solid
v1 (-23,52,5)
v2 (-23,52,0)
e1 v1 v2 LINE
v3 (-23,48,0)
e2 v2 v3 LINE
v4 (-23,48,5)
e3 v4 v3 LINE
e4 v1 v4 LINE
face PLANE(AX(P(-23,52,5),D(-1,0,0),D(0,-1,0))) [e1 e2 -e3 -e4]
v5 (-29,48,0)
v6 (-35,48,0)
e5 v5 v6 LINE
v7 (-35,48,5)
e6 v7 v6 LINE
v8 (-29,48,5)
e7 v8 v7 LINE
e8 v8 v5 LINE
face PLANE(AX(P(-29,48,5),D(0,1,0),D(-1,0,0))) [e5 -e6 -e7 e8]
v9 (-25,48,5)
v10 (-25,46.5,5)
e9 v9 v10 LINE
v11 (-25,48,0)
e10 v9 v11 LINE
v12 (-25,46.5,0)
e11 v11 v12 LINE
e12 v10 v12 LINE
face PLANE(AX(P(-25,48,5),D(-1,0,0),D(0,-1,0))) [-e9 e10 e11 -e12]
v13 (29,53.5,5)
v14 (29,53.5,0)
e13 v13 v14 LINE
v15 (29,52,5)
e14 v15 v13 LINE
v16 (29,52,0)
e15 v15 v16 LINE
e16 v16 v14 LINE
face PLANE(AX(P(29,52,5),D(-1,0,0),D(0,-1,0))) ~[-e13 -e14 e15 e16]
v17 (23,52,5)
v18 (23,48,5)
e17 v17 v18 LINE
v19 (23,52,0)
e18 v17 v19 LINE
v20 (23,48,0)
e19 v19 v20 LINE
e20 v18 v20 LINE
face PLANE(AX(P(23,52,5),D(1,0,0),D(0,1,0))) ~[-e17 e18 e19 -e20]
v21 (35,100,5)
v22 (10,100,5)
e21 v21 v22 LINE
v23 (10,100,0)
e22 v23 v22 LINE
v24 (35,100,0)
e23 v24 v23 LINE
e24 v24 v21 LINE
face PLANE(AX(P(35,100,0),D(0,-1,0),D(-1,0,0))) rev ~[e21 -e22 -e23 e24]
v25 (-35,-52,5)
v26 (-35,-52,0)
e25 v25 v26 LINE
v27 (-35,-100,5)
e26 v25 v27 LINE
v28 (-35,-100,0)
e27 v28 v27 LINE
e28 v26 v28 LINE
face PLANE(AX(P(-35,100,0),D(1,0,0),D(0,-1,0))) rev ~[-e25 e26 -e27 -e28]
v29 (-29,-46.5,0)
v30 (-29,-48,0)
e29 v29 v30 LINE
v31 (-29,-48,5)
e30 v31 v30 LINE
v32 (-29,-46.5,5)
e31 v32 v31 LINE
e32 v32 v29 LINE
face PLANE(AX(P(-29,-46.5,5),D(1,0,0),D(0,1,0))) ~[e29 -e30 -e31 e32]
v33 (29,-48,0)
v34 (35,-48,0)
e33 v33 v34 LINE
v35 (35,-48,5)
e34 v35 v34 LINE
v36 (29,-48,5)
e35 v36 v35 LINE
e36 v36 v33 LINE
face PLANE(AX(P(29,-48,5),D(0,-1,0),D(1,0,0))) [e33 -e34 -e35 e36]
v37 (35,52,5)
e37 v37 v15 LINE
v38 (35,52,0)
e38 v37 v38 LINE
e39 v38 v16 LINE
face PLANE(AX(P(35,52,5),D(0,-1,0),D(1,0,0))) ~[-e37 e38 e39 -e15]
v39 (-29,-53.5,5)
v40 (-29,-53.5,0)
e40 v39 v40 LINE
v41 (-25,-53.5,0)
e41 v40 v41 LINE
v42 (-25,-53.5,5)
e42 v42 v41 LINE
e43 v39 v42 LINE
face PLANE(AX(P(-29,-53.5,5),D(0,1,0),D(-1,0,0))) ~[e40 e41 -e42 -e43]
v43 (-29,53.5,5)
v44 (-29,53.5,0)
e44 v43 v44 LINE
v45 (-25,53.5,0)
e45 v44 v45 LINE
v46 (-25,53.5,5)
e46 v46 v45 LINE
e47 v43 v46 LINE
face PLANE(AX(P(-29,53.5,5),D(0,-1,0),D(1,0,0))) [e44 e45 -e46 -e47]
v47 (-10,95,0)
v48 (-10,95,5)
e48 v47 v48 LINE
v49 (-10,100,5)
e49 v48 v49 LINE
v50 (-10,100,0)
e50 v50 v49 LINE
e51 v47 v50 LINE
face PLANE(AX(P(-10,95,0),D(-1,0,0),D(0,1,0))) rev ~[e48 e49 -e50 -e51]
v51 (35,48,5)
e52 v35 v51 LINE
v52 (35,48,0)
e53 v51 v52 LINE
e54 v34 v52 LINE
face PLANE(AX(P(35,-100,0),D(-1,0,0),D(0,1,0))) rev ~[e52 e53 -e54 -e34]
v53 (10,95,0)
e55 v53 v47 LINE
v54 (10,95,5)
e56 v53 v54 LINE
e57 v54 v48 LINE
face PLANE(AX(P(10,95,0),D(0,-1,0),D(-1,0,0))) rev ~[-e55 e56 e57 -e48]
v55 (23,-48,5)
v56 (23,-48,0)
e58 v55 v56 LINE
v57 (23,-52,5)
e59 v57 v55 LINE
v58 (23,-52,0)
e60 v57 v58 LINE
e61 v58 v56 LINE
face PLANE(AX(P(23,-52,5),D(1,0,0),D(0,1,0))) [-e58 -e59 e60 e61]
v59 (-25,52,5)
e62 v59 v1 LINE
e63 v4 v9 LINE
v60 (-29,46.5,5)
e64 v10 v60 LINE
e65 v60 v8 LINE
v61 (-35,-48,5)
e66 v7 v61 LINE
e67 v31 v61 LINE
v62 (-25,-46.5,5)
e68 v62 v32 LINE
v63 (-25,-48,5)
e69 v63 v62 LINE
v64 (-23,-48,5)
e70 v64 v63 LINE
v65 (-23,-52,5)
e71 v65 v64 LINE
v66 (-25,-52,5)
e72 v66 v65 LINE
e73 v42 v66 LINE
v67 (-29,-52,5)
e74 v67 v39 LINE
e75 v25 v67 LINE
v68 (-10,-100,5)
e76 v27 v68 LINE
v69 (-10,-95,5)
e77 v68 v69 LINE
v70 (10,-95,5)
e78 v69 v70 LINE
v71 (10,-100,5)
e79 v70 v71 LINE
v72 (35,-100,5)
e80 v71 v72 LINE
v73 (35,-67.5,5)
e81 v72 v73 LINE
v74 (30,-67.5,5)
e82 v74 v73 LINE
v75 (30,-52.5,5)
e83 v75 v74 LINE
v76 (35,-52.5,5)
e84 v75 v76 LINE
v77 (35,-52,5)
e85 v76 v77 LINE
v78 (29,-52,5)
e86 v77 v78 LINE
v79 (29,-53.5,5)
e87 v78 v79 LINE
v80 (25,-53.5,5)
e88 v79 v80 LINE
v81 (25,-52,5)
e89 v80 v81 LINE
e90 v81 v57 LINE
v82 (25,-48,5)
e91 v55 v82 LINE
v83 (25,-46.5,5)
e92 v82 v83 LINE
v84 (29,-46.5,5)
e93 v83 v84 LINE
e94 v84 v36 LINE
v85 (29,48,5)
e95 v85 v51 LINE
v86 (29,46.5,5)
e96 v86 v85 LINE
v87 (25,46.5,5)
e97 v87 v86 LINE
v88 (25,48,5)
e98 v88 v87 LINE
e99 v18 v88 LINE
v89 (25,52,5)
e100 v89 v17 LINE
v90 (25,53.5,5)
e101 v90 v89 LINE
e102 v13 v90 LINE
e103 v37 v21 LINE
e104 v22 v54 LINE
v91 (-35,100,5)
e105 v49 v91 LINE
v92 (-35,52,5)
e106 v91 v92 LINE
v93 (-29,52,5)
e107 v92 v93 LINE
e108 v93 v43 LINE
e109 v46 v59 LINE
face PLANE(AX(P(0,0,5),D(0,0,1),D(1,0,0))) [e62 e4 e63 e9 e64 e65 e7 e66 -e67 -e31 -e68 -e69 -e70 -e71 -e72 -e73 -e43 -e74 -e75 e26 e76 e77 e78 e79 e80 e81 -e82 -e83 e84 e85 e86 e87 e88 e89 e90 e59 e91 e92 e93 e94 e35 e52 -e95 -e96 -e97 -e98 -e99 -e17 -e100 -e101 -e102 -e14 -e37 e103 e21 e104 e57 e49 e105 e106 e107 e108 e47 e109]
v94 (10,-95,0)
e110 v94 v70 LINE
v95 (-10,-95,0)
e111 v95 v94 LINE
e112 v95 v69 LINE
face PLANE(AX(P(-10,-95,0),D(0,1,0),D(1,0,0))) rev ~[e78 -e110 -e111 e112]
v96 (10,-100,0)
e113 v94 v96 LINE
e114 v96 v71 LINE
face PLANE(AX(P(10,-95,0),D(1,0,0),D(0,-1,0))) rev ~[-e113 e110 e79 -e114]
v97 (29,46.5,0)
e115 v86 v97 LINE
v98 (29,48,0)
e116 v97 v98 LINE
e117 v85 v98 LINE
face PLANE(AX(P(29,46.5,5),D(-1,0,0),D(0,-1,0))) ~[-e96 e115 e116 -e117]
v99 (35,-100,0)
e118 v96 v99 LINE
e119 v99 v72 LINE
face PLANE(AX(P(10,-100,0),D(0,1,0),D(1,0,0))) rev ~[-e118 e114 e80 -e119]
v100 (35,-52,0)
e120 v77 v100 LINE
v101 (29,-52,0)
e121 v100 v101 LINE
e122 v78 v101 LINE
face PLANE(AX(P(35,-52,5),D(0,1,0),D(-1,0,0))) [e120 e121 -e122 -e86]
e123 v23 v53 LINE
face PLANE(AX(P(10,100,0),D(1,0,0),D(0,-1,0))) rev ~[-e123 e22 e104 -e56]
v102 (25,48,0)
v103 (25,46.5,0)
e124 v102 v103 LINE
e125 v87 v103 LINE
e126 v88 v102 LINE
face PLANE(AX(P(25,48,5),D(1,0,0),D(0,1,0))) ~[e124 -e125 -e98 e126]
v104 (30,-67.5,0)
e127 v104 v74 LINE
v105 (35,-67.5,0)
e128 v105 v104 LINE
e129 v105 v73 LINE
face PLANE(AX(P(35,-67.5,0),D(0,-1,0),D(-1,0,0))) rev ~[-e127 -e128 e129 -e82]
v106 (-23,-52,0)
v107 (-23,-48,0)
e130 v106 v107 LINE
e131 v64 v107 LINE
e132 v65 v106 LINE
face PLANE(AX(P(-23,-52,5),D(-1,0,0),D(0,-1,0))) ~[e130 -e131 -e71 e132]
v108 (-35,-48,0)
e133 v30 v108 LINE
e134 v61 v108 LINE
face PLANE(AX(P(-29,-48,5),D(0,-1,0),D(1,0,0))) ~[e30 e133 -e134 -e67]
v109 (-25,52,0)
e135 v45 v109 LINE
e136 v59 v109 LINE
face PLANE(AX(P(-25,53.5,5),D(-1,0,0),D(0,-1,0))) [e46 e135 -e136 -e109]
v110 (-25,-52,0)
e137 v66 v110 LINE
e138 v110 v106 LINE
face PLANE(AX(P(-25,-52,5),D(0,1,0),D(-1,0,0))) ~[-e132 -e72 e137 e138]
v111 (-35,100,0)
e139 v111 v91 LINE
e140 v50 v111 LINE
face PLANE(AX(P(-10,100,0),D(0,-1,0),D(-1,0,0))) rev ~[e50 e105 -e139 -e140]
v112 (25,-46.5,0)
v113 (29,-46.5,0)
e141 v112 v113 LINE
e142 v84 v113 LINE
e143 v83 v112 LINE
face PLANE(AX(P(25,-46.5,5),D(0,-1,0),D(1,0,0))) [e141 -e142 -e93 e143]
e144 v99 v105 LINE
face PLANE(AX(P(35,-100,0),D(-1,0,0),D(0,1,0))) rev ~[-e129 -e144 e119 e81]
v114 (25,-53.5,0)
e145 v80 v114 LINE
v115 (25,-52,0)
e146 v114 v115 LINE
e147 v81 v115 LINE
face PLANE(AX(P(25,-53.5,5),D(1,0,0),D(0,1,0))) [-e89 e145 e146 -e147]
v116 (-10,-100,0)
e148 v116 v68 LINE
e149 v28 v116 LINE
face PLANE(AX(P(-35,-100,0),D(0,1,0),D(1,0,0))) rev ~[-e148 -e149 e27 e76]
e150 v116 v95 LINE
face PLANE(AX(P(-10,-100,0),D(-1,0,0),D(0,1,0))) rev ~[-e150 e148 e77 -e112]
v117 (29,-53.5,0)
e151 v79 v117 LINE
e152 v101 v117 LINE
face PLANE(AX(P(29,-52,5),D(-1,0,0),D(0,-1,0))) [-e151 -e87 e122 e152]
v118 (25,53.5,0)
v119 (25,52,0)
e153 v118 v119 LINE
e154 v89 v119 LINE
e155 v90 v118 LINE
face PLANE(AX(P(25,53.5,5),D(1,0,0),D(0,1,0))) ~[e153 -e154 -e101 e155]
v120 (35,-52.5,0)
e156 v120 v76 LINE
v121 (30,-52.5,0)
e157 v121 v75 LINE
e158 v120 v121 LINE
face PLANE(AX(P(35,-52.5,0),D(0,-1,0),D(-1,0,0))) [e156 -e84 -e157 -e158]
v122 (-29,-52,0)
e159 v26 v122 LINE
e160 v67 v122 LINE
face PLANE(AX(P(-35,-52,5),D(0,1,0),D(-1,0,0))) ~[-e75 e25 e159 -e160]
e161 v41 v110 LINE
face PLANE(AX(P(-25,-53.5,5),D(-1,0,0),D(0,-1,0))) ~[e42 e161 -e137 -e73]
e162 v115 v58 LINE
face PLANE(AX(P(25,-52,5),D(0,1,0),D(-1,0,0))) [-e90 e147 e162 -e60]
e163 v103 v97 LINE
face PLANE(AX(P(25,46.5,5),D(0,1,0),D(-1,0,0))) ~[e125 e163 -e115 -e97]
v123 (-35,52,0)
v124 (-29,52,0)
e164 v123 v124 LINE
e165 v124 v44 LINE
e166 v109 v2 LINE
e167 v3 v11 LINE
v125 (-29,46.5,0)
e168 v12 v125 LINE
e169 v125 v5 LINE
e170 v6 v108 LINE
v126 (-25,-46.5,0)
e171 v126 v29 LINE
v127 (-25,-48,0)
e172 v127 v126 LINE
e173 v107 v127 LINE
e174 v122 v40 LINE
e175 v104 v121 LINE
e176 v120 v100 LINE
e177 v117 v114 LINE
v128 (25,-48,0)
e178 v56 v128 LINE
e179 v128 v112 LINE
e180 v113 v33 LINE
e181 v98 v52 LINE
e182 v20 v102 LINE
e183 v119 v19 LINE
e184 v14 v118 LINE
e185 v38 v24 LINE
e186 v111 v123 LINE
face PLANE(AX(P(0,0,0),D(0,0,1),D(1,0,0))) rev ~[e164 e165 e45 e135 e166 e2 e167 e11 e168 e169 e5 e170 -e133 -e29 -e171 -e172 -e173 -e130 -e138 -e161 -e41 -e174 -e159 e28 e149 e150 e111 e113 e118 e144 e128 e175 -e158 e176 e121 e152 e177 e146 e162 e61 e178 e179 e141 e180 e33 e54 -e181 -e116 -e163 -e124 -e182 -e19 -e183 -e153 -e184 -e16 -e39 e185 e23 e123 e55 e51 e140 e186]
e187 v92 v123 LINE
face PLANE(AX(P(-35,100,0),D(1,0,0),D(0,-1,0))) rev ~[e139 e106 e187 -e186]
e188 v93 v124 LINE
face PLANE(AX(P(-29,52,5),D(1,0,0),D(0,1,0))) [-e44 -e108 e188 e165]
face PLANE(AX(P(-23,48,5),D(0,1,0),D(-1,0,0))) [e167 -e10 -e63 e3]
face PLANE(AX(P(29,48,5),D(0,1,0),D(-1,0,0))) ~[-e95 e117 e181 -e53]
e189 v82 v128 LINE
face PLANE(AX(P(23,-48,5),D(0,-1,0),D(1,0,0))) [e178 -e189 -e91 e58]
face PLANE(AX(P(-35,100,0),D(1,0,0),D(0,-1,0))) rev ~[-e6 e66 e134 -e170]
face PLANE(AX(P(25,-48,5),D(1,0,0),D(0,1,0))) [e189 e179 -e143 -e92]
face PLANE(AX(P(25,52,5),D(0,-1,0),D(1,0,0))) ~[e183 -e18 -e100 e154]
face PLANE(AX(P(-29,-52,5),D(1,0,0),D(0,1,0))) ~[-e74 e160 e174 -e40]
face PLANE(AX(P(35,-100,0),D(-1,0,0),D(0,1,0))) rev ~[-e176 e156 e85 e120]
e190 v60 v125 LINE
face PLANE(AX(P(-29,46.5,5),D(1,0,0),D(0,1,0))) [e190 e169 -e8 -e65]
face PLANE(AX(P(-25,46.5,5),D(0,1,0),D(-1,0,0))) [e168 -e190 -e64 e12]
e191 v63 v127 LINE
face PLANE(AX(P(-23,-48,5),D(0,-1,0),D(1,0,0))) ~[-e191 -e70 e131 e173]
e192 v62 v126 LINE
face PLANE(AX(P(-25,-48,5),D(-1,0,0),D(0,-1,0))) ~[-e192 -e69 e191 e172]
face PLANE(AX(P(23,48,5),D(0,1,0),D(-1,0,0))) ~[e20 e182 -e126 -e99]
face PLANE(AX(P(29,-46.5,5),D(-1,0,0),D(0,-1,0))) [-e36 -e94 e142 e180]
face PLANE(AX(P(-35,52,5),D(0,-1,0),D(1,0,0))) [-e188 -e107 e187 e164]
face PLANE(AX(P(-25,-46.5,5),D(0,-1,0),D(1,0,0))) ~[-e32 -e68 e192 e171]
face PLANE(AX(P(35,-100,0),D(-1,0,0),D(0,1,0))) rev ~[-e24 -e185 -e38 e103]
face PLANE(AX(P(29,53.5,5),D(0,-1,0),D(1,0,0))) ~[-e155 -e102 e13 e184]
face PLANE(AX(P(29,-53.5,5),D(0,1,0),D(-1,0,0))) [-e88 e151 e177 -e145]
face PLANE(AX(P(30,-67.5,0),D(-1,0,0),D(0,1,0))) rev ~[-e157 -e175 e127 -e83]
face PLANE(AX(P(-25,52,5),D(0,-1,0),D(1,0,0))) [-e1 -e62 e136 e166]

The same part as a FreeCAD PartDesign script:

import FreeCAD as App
import Part
import Sketcher
from FreeCAD import Vector
Q = App.Units.Quantity


def add_polygon(sketch, points):
    """Adds a closed chain of lines whose ends are joined by coincident constraints."""
    first, n = sketch.GeometryCount, len(points)
    for a, b in zip(points, points[1:] + points[:1]):
        sketch.addGeometry(Part.LineSegment(App.Vector(*a, 0), App.Vector(*b, 0)), False)
    for i in range(n):
        sketch.addConstraint(Sketcher.Constraint("Coincident", first + i, 2, first + (i + 1) % n, 1))

doc = App.newDocument("Part")
body = doc.addObject("PartDesign::Body", "Body")

# Sketch on XY plane
sketch1 = doc.addObject("Sketcher::SketchObject", "Sketch")
body.addObject(sketch1)
sketch1.AttachmentSupport = (doc.XY_Plane, [""])
sketch1.MapMode = "FlatFace"
add_polygon(sketch1, [(-10, 100), (-35, 100), (-35, -100), (-10, -100), (-10, -95), (10, -95), (10, -100), (35, -100), (35, 100), (10, 100), (10, 95), (-10, 95)])  # lines 0-11
sketch1.addConstraint([
    Sketcher.Constraint("Horizontal", 0),
    Sketcher.Constraint("Vertical", 1),
    Sketcher.Constraint("Horizontal", 2),
    Sketcher.Constraint("Vertical", 3),
    Sketcher.Constraint("Horizontal", 4),
    Sketcher.Constraint("Vertical", 5),
    Sketcher.Constraint("Horizontal", 6),
    Sketcher.Constraint("Vertical", 7),
    Sketcher.Constraint("Horizontal", 8),
    Sketcher.Constraint("Vertical", 9),
    Sketcher.Constraint("Horizontal", 10),
    Sketcher.Constraint("Vertical", 11),
    Sketcher.Constraint("Symmetric", 0, 2, 6, 2, -1, 1),
    Sketcher.Constraint("Symmetric", 2, 2, 8, 2, -1, 1),
    Sketcher.Constraint("Symmetric", 4, 2, 10, 2, -1, 1),
    Sketcher.Constraint("Symmetric", 2, 2, 5, 2, -2),
    Sketcher.Constraint("DistanceX", 0, 2, 0, 1, Q("25 mm")),
    Sketcher.Constraint("DistanceX", 4, 1, 4, 2, Q("20 mm")),
    Sketcher.Constraint("DistanceY", 1, 2, 1, 1, Q("200 mm")),
    Sketcher.Constraint("DistanceY", 3, 1, 3, 2, Q("5 mm")),
])
pad1 = doc.addObject("PartDesign::Pad", "Pad")
body.addObject(pad1)
pad1.Profile = sketch1
pad1.Length = 5

# Sketch on XY plane
sketch2 = doc.addObject("Sketcher::SketchObject", "Sketch001")
body.addObject(sketch2)
sketch2.AttachmentSupport = (doc.XY_Plane, [""])
sketch2.MapMode = "FlatFace"
sketch2.AttachmentOffset = App.Placement(Vector(0, 0, 5), App.Rotation())
add_polygon(sketch2, [(29, -52), (35, -52), (35, -48), (29, -48), (29, -46.5), (25, -46.5), (25, -48), (23, -48), (23, -52), (25, -52), (25, -53.5), (29, -53.5)])  # lines 0-11
sketch2.addConstraint([
    Sketcher.Constraint("Horizontal", 0),
    Sketcher.Constraint("Vertical", 1),
    Sketcher.Constraint("Horizontal", 2),
    Sketcher.Constraint("Vertical", 3),
    Sketcher.Constraint("Horizontal", 4),
    Sketcher.Constraint("Vertical", 5),
    Sketcher.Constraint("Horizontal", 6),
    Sketcher.Constraint("Vertical", 7),
    Sketcher.Constraint("Horizontal", 8),
    Sketcher.Constraint("Vertical", 9),
    Sketcher.Constraint("Horizontal", 10),
    Sketcher.Constraint("Vertical", 11),
    Sketcher.Constraint("Horizontal", 2, 2, 5, 2),
    Sketcher.Constraint("Horizontal", 0, 2, 7, 2),
    Sketcher.Constraint("Vertical", 5, 2, 8, 2),
    Sketcher.Constraint("Vertical", 3, 2, 10, 2),
    Sketcher.Constraint("Equal", 10, 1),
    Sketcher.Constraint("Equal", 5, 9),
    Sketcher.Constraint("DistanceX", 0, 1, 0, 2, Q("6 mm")),
    Sketcher.Constraint("DistanceX", 4, 2, 4, 1, Q("4 mm")),
    Sketcher.Constraint("DistanceX", 6, 2, 6, 1, Q("2 mm")),
    Sketcher.Constraint("DistanceY", 3, 1, 3, 2, Q("1.5 mm")),
    Sketcher.Constraint("DistanceX", -1, 1, 0, 2, Q("35 mm")),
    Sketcher.Constraint("DistanceY", 0, 2, -1, 1, Q("52 mm")),
])
pocket1 = doc.addObject("PartDesign::Pocket", "Pocket")
body.addObject(pocket1)
pocket1.Profile = sketch2
pocket1.Length = 10
doc.recompute()

mirrored = doc.addObject("PartDesign::Mirrored", "Mirrored")
body.addObject(mirrored)
mirrored.Originals = [pocket1]
mirrored.MirrorPlane = (doc.XZ_Plane, [""])
body.Tip = mirrored
doc.recompute()

mirrored2 = doc.addObject("PartDesign::Mirrored", "Mirrored001")
body.addObject(mirrored2)
mirrored2.Originals = [pocket1]
mirrored2.MirrorPlane = (doc.YZ_Plane, [""])
body.Tip = mirrored2

# Sketch on XY plane
sketch3 = doc.addObject("Sketcher::SketchObject", "Sketch002")
body.addObject(sketch3)
sketch3.AttachmentSupport = (doc.XY_Plane, [""])
sketch3.MapMode = "FlatFace"
sketch3.AttachmentOffset = App.Placement(Vector(0, 0, 5), App.Rotation())
add_polygon(sketch3, [(-29, 52), (-35, 52), (-35, 48), (-29, 48), (-29, 46.5), (-25, 46.5), (-25, 48), (-23, 48), (-23, 52), (-25, 52), (-25, 53.5), (-29, 53.5)])  # lines 0-11
sketch3.addConstraint([
    Sketcher.Constraint("Horizontal", 0),
    Sketcher.Constraint("Vertical", 1),
    Sketcher.Constraint("Horizontal", 2),
    Sketcher.Constraint("Vertical", 3),
    Sketcher.Constraint("Horizontal", 4),
    Sketcher.Constraint("Vertical", 5),
    Sketcher.Constraint("Horizontal", 6),
    Sketcher.Constraint("Vertical", 7),
    Sketcher.Constraint("Horizontal", 8),
    Sketcher.Constraint("Vertical", 9),
    Sketcher.Constraint("Horizontal", 10),
    Sketcher.Constraint("Vertical", 11),
    Sketcher.Constraint("Horizontal", 2, 2, 5, 2),
    Sketcher.Constraint("Horizontal", 0, 2, 7, 2),
    Sketcher.Constraint("Vertical", 5, 2, 8, 2),
    Sketcher.Constraint("Vertical", 3, 2, 10, 2),
    Sketcher.Constraint("Equal", 10, 1),
    Sketcher.Constraint("Equal", 5, 9),
    Sketcher.Constraint("DistanceX", 0, 2, 0, 1, Q("6 mm")),
    Sketcher.Constraint("DistanceX", 4, 1, 4, 2, Q("4 mm")),
    Sketcher.Constraint("DistanceX", 6, 1, 6, 2, Q("2 mm")),
    Sketcher.Constraint("DistanceY", 3, 2, 3, 1, Q("1.5 mm")),
    Sketcher.Constraint("DistanceX", 0, 2, -1, 1, Q("35 mm")),
    Sketcher.Constraint("DistanceY", -1, 1, 0, 2, Q("52 mm")),
])
pocket2 = doc.addObject("PartDesign::Pocket", "Pocket001")
body.addObject(pocket2)
pocket2.Profile = sketch3
pocket2.Length = 10

# Sketch on XY plane
sketch4 = doc.addObject("Sketcher::SketchObject", "Sketch003")
body.addObject(sketch4)
sketch4.AttachmentSupport = (doc.XY_Plane, [""])
sketch4.MapMode = "FlatFace"
add_polygon(sketch4, [(35, -52), (35, -68), (30, -68), (30, -52)])  # lines 0-3
sketch4.addConstraint([
    Sketcher.Constraint("Vertical", 0),
    Sketcher.Constraint("Horizontal", 1),
    Sketcher.Constraint("Vertical", 2),
    Sketcher.Constraint("Horizontal", 3),
    Sketcher.Constraint("DistanceX", 1, 2, 1, 1, Q("5 mm")),
    Sketcher.Constraint("DistanceY", 0, 2, 0, 1, Q("15 mm")),
    Sketcher.Constraint("DistanceX", -1, 1, 0, 2, Q("35 mm")),
    Sketcher.Constraint("DistanceY", 0, 2, -1, 1, Q("67.5 mm")),
])
pocket3 = doc.addObject("PartDesign::Pocket", "Pocket002")
body.addObject(pocket3)
pocket3.Profile = sketch4
pocket3.Length = 10
pocket3.Reversed = True

doc.recompute()
